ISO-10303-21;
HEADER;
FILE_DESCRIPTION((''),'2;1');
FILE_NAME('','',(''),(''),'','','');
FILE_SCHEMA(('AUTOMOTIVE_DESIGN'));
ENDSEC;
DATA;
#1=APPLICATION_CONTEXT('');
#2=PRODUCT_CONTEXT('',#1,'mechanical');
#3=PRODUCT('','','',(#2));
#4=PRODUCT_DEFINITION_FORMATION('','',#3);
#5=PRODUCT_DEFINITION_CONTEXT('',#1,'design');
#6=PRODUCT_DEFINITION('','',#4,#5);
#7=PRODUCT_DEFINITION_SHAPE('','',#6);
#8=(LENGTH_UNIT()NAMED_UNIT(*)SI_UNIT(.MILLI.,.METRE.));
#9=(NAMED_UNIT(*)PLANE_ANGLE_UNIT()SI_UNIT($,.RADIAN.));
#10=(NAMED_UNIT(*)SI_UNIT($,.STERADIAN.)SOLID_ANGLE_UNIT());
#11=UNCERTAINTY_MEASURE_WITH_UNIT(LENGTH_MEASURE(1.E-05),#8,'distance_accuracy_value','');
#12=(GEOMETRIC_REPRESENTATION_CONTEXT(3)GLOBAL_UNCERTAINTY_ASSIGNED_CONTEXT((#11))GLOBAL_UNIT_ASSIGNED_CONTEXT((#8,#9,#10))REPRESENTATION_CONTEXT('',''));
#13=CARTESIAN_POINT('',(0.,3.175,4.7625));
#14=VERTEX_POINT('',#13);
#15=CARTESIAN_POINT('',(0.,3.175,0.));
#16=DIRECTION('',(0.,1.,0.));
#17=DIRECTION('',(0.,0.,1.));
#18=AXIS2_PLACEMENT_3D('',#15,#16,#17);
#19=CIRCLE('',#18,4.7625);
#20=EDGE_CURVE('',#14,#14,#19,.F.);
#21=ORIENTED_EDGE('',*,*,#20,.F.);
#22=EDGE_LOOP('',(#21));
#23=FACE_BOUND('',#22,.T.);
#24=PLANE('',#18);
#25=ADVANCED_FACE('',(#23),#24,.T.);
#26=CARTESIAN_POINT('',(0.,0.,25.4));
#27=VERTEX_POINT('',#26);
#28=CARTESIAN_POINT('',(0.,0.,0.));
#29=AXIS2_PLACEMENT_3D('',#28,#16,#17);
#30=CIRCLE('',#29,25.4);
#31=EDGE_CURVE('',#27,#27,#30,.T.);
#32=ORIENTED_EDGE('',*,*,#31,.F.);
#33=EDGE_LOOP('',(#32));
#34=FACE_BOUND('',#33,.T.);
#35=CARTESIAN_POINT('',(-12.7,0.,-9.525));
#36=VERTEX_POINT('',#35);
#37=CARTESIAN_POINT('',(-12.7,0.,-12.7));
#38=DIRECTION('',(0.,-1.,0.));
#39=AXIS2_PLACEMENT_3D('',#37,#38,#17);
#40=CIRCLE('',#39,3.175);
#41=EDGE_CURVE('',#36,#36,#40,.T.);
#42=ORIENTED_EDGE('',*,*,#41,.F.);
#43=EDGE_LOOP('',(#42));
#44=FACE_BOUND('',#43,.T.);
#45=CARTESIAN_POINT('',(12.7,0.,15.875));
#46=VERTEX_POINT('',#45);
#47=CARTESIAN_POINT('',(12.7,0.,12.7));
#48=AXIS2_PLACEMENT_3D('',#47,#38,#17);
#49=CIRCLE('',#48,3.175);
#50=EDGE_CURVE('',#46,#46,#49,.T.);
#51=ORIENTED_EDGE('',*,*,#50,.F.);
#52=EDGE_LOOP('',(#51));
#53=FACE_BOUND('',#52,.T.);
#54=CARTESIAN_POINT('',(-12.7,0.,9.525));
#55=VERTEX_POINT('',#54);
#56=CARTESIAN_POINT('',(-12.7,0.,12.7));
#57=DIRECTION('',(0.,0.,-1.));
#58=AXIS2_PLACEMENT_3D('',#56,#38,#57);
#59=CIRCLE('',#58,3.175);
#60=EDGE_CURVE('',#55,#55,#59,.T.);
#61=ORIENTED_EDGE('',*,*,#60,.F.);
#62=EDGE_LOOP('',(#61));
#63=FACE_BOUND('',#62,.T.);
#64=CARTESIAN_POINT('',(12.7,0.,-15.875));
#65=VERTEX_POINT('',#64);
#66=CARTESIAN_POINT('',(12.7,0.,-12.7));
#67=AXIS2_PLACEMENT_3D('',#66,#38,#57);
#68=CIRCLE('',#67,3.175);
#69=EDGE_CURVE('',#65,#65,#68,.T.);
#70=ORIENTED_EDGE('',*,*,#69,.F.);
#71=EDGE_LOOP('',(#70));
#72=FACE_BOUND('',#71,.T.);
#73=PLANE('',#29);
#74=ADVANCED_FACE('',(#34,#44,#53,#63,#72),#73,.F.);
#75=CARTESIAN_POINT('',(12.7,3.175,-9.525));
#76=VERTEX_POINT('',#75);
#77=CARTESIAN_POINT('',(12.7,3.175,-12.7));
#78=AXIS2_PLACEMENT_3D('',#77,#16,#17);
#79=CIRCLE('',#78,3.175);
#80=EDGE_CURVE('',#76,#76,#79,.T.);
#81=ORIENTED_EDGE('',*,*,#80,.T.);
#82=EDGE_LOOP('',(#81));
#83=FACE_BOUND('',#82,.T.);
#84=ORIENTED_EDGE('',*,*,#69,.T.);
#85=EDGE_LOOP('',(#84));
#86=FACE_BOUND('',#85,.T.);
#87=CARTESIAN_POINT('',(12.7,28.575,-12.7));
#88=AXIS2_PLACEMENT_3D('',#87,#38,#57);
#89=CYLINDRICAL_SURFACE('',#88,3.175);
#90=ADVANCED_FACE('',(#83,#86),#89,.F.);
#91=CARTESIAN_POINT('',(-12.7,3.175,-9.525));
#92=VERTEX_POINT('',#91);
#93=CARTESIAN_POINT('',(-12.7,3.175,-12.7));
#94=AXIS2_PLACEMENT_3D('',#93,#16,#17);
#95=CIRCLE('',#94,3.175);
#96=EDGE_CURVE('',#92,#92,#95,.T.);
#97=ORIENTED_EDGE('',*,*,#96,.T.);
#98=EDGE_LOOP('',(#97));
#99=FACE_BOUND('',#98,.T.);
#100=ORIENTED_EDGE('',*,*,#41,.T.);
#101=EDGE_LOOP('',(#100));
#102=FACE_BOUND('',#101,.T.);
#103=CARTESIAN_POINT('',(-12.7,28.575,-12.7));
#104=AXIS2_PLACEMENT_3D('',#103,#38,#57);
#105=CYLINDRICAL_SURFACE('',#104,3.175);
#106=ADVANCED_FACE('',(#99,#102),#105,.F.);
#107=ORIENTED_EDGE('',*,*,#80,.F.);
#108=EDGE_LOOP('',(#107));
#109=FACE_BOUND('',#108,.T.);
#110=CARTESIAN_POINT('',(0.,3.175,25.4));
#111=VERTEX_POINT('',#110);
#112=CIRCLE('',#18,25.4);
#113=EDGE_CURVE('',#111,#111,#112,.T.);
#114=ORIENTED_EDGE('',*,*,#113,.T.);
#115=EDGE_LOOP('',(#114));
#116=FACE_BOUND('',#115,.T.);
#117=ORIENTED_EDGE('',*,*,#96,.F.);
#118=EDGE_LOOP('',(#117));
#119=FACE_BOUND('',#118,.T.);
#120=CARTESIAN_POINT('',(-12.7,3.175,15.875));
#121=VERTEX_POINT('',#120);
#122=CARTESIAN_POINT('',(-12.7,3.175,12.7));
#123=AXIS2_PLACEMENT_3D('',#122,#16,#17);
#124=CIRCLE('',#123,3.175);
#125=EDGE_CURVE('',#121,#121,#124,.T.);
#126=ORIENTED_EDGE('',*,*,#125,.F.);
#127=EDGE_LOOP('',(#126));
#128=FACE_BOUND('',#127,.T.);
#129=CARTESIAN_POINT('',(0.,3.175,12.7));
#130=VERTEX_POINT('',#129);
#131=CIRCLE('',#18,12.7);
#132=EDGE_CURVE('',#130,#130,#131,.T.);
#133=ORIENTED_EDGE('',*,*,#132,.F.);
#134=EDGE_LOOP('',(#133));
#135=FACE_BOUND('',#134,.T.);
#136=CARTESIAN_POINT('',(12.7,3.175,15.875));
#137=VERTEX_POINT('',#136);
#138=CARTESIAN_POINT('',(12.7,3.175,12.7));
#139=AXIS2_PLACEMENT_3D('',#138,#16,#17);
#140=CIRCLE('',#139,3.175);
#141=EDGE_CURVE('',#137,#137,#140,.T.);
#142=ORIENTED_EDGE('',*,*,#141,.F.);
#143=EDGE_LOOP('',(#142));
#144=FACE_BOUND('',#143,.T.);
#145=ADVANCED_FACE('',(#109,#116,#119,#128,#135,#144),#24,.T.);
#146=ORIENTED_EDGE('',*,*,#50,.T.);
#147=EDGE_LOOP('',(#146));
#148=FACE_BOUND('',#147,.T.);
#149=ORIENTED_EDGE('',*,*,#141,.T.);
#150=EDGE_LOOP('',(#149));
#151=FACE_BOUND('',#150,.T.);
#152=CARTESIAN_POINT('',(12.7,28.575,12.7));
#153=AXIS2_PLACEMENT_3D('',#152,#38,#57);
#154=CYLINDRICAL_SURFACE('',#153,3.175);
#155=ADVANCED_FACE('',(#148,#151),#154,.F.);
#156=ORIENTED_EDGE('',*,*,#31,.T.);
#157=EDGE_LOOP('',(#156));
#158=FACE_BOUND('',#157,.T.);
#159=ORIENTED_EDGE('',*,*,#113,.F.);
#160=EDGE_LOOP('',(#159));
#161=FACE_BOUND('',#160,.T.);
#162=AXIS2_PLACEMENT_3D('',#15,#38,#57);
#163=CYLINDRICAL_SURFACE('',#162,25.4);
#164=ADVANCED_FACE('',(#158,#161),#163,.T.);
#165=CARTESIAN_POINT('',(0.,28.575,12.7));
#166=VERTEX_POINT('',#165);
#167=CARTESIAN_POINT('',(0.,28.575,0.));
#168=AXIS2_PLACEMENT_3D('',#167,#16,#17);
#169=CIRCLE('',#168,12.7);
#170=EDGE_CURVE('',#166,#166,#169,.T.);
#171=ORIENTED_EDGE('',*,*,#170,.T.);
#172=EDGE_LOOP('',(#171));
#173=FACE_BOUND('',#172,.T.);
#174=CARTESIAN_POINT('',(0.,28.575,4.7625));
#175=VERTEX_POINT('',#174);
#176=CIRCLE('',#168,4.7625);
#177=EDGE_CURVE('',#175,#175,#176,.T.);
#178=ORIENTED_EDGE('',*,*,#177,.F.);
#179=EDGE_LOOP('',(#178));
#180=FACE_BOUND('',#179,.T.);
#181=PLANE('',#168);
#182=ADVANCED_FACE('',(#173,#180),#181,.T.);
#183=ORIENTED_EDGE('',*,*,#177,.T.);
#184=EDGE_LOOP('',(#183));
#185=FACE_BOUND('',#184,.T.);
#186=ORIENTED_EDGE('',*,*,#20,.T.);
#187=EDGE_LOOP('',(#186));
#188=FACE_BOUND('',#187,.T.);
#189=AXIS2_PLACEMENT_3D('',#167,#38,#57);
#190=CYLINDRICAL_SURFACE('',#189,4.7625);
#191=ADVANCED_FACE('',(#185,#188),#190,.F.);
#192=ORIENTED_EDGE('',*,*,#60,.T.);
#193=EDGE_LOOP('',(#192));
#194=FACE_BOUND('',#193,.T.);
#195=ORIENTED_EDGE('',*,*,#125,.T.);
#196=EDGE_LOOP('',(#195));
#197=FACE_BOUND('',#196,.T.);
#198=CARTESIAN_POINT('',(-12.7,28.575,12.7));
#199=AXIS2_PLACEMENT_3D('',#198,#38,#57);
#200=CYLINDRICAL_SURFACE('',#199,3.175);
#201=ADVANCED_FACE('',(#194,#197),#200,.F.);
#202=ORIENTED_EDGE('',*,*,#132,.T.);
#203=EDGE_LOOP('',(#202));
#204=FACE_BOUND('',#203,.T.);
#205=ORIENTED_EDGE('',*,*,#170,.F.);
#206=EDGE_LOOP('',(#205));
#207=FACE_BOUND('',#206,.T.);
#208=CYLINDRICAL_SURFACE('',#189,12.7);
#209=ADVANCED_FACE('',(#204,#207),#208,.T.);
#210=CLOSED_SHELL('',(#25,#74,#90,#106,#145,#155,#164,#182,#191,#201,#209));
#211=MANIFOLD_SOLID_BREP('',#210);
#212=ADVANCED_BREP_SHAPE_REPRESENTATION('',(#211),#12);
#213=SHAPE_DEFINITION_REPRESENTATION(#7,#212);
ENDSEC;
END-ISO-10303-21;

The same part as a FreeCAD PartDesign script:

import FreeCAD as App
import Part
import Sketcher
Q = App.Units.Quantity

doc = App.newDocument("Part")
body = doc.addObject("PartDesign::Body", "Body")

# Sketch on XZ plane
sketch1 = doc.addObject("Sketcher::SketchObject", "Sketch")
body.addObject(sketch1)
sketch1.AttachmentSupport = (doc.XZ_Plane, [""])
sketch1.MapMode = "FlatFace"
sketch1.addGeometry(Part.Circle(App.Vector(0, 0, 0), App.Vector(0, 0, 1), 25.4), False)
sketch1.addConstraint([
    Sketcher.Constraint("Coincident", 0, 3, -1, 1),
    Sketcher.Constraint("Diameter", 0, Q("2 in")),
])
pad1 = doc.addObject("PartDesign::Pad", "Pad")
body.addObject(pad1)
pad1.Profile = sketch1
pad1.Length = Q("0.125 in")
pad1.Reversed = True

# Sketch on XZ plane
sketch2 = doc.addObject("Sketcher::SketchObject", "Sketch001")
body.addObject(sketch2)
sketch2.AttachmentSupport = (doc.XZ_Plane, [""])
sketch2.MapMode = "FlatFace"
sketch2.AttachmentOffset = App.Placement(App.Vector(0, 0, -0.125 * 25.4), App.Rotation())
sketch2.addGeometry([
    Part.Circle(App.Vector(0, 0, 0), App.Vector(0, 0, 1), 12.7),
    Part.Circle(App.Vector(0, 0, 0), App.Vector(0, 0, 1), 4.7625),
], False)
sketch2.addConstraint([
    Sketcher.Constraint("Coincident", 0, 3, -1, 1),
    Sketcher.Constraint("Coincident", 1, 3, -1, 1),
    Sketcher.Constraint("Diameter", 0, Q("1 in")),
    Sketcher.Constraint("Diameter", 1, Q("0.375 in")),
])
pad2 = doc.addObject("PartDesign::Pad", "Pad001")
body.addObject(pad2)
pad2.Profile = sketch2
pad2.Length = Q("1 in")
pad2.Reversed = True

# Sketch on XZ plane
sketch3 = doc.addObject("Sketcher::SketchObject", "Sketch002")
body.addObject(sketch3)
sketch3.AttachmentSupport = (doc.XZ_Plane, [""])
sketch3.MapMode = "FlatFace"
sketch3.addGeometry([
    Part.Circle(App.Vector(-12.7, 12.7, 0), App.Vector(0, 0, 1), 3.175),
    Part.Circle(App.Vector(12.7, 12.7, 0), App.Vector(0, 0, 1), 3.175),
    Part.Circle(App.Vector(12.7, -12.7, 0), App.Vector(0, 0, 1), 3.175),
    Part.Circle(App.Vector(-12.7, -12.7, 0), App.Vector(0, 0, 1), 3.175),
], False)
sketch3.addConstraint([
    Sketcher.Constraint("Equal", 0, 1),
    Sketcher.Constraint("Equal", 1, 2),
    Sketcher.Constraint("Equal", 2, 3),
    Sketcher.Constraint("Symmetric", 0, 3, 2, 3, -1, 1),
    Sketcher.Constraint("Symmetric", 1, 3, 3, 3, -1, 1),
    Sketcher.Constraint("Symmetric", 0, 3, 1, 3, -2),
    Sketcher.Constraint("Diameter", 0, Q("0.25 in")),
    Sketcher.Constraint("DistanceX", 0, 3, 1, 3, Q("1 in")),
    Sketcher.Constraint("DistanceY", 2, 3, 1, 3, Q("1 in")),
])
pocket1 = doc.addObject("PartDesign::Pocket", "Pocket")
body.addObject(pocket1)
pocket1.Profile = sketch3
pocket1.Type = "ThroughAll"

doc.recompute()
